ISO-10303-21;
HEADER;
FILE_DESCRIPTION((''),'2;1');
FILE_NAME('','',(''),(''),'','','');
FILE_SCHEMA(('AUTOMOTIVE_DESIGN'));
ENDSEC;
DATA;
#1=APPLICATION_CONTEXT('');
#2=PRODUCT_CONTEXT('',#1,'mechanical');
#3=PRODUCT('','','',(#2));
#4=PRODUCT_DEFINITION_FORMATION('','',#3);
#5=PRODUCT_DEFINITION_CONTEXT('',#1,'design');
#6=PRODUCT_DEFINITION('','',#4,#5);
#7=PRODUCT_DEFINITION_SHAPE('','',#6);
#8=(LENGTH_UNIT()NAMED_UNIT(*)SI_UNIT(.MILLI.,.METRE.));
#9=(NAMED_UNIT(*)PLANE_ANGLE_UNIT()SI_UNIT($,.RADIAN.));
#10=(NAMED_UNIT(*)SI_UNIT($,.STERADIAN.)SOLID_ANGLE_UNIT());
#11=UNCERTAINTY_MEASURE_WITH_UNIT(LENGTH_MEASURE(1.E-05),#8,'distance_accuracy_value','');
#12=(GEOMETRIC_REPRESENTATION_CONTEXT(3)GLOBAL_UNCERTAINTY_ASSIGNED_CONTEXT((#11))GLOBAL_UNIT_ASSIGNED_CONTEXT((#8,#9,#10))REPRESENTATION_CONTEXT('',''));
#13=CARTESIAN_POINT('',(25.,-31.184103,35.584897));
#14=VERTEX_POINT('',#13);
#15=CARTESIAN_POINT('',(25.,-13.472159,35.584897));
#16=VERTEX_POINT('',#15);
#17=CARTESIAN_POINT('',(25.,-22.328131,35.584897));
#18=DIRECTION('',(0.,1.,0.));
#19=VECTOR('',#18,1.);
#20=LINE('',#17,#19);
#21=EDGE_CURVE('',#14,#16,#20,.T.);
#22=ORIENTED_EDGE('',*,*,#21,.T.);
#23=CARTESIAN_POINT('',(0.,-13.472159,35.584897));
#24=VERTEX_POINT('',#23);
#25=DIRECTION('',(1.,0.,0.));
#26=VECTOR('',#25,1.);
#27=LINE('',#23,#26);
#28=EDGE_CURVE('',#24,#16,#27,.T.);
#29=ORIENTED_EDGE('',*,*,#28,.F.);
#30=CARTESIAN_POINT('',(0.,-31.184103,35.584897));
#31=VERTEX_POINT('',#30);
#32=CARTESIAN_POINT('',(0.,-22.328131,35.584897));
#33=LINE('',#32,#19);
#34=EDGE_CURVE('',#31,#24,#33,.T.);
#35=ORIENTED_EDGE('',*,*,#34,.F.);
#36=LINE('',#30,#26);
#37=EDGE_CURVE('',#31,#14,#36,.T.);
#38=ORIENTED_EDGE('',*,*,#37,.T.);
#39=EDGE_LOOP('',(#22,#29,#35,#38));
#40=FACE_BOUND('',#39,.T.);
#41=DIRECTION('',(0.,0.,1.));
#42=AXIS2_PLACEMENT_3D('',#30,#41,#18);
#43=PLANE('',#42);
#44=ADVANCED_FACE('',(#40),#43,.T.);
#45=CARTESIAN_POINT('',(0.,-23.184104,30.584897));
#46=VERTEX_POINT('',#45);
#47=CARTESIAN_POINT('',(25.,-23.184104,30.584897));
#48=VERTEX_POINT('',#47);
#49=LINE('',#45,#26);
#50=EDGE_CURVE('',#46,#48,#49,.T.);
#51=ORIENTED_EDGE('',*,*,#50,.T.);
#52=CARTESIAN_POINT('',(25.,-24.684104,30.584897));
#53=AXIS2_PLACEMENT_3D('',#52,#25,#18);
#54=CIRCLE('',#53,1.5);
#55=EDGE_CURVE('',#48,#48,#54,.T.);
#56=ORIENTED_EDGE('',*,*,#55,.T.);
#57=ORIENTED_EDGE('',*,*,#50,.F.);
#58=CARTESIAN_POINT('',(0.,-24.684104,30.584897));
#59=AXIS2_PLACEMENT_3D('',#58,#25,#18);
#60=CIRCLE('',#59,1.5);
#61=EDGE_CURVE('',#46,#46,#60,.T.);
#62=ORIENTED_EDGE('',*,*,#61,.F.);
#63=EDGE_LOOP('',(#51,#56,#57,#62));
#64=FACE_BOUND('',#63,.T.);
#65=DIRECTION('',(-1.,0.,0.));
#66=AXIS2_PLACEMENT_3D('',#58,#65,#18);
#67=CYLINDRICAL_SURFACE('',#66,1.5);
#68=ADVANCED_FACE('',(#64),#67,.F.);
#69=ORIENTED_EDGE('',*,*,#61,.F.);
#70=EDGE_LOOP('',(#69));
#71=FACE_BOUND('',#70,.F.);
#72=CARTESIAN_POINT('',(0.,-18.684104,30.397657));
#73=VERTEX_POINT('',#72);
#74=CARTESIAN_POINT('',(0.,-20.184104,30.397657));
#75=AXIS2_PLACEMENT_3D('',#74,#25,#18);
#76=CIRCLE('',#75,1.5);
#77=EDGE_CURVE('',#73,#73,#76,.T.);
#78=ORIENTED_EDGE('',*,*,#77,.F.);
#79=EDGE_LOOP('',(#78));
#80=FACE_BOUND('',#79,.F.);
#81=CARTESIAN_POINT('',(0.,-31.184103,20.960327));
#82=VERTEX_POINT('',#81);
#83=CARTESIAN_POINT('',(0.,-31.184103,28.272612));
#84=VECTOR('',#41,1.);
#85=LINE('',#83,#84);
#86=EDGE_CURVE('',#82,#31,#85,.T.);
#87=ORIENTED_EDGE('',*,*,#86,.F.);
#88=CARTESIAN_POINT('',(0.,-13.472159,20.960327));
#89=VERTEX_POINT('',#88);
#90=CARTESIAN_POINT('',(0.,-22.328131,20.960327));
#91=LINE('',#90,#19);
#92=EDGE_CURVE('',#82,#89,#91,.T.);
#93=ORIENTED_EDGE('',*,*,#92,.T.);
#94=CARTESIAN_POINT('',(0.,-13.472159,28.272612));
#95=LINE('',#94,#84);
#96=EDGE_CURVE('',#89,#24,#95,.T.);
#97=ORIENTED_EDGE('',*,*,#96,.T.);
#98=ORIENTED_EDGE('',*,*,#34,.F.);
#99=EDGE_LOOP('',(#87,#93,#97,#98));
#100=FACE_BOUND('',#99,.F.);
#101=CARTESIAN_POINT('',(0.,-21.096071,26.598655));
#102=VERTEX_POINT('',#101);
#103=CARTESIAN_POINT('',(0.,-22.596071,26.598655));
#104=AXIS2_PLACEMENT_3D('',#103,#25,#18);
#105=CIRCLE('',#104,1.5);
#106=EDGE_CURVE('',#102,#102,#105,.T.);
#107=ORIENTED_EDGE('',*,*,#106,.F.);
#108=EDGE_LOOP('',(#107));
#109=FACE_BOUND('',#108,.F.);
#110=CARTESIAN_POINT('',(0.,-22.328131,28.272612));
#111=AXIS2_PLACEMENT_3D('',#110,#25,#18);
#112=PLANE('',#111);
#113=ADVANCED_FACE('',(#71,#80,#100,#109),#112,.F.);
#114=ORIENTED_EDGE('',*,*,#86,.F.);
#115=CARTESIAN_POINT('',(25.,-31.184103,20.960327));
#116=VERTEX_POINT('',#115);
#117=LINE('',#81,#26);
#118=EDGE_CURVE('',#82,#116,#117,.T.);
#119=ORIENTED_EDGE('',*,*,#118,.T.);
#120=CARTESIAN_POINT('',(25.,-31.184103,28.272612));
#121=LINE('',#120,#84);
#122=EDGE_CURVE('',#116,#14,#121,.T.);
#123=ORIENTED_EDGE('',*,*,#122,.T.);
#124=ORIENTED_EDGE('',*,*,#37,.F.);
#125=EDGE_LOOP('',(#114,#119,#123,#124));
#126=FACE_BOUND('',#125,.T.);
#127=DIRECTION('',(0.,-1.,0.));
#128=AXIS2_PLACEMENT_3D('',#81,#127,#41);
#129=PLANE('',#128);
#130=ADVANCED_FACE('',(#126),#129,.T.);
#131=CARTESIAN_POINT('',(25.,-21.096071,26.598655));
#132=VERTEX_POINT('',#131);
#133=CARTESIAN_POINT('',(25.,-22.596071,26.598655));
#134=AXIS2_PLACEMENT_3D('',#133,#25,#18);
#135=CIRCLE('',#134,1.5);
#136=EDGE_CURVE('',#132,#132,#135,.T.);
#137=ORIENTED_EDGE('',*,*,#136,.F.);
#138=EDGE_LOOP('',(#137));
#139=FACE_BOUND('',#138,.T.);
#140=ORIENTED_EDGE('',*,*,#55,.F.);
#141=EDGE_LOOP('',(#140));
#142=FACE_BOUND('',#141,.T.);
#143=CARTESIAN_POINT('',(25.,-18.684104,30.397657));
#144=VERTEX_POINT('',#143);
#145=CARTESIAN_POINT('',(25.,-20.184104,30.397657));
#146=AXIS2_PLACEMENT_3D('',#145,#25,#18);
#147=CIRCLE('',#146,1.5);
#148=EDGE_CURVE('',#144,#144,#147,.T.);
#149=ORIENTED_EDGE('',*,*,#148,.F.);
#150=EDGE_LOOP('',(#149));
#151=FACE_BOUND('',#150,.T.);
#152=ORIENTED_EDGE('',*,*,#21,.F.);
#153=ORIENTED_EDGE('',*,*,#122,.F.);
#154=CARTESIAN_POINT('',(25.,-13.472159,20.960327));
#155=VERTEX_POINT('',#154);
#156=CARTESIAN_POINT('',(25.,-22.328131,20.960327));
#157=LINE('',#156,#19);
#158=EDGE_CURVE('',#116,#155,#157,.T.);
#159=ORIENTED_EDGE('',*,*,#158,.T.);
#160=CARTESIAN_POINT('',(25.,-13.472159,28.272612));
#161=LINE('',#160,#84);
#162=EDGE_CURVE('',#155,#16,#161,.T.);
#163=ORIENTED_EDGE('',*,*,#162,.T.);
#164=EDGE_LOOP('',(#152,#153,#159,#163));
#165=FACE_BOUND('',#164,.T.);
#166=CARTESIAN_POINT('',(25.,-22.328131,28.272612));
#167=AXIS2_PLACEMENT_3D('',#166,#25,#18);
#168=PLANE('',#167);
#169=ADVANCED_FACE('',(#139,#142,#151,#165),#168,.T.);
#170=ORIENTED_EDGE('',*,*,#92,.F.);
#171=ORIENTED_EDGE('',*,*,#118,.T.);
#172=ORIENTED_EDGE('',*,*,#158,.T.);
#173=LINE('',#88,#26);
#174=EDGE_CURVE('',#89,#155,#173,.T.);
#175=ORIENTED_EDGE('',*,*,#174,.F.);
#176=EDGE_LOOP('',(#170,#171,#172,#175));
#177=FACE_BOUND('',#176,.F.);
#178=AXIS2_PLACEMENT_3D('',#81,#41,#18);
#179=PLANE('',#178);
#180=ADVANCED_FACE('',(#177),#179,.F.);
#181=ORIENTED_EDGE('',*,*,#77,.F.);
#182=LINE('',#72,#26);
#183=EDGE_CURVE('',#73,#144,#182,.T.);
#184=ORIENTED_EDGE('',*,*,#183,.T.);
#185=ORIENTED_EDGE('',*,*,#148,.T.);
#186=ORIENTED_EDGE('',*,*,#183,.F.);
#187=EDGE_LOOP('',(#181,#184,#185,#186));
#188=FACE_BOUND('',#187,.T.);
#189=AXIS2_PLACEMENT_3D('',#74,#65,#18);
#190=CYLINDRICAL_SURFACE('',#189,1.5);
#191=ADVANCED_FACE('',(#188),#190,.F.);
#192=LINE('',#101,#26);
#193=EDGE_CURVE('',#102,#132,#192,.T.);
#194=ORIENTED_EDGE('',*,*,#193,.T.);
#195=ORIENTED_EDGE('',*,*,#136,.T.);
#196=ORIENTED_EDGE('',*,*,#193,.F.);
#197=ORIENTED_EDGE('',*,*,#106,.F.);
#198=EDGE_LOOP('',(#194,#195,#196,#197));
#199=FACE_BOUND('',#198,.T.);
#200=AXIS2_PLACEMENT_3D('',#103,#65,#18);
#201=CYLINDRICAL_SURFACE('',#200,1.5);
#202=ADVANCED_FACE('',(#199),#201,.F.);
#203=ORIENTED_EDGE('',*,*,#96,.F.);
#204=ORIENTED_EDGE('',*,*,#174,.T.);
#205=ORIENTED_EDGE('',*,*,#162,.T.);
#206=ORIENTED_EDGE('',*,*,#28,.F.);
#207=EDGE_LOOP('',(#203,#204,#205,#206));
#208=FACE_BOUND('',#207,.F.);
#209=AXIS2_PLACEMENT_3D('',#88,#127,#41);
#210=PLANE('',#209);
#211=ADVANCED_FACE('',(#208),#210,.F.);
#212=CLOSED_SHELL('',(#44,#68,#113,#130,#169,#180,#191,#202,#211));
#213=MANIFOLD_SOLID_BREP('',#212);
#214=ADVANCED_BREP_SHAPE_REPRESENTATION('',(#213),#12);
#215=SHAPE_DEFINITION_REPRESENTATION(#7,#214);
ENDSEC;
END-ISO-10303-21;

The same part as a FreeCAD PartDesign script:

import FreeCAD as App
import Part
import Sketcher

doc = App.newDocument("Part")
body = doc.addObject("PartDesign::Body", "Body")

# Sketch on YZ plane
sketch1 = body.newObject("Sketcher::SketchObject", "Sketch")
sketch1.AttachmentSupport = (doc.getObject("YZ_Plane"), [""])
sketch1.MapMode = "FlatFace"
sketch1.addGeometry([
    Part.LineSegment(App.Vector(-31.2, 35.6, 0), App.Vector(-31.2, 21, 0)),  # 0
    Part.LineSegment(App.Vector(-31.2, 21, 0), App.Vector(-13.5, 21, 0)),  # 1
    Part.LineSegment(App.Vector(-13.5, 21, 0), App.Vector(-13.5, 35.6, 0)),  # 2
    Part.LineSegment(App.Vector(-13.5, 35.6, 0), App.Vector(-31.2, 35.6, 0)),  # 3
    Part.Circle(App.Vector(-22.6, 26.6, 0), App.Vector(0, 0, 1), 1.5),  # 4
    Part.Circle(App.Vector(-24.7, 30.6, 0), App.Vector(0, 0, 1), 1.5),  # 5
    Part.Circle(App.Vector(-20.2, 30.4, 0), App.Vector(0, 0, 1), 1.5),  # 6
], False)
sketch1.addConstraint([
    Sketcher.Constraint("Coincident", 0, 2, 1, 1),
    Sketcher.Constraint("Coincident", 1, 2, 2, 1),
    Sketcher.Constraint("Coincident", 2, 2, 3, 1),
    Sketcher.Constraint("Coincident", 3, 2, 0, 1),
    Sketcher.Constraint("Vertical", 0),
    Sketcher.Constraint("Horizontal", 1),
    Sketcher.Constraint("Vertical", 2),
    Sketcher.Constraint("Horizontal", 3),
    Sketcher.Constraint("Equal", 4, 5),
    Sketcher.Constraint("Equal", 5, 6),
    Sketcher.Constraint("Diameter", 4, 3.0),
    Sketcher.Constraint("DistanceX", 0, 2, 6, 3, 10.999999),
    Sketcher.Constraint("DistanceY", 5, 3, 2, 2, 5.0),
    Sketcher.Constraint("DistanceX", 5, 3, 6, 3, 4.5),
    Sketcher.Constraint("DistanceY", 4, 3, 6, 3, 3.799002),
    Sketcher.Constraint("DistanceY", 0, 2, 0, 1, 14.62457),
    Sketcher.Constraint("DistanceX", 1, 1, 1, 2, 17.711945),
    Sketcher.Constraint("DistanceX", 4, 3, -1, 1, 22.596071),
    Sketcher.Constraint("DistanceX", 1, 2, -1, 1, 13.472159),
    Sketcher.Constraint("DistanceY", 6, 3, 5, 3, 0.18724),
    Sketcher.Constraint("DistanceY", -1, 1, 4, 3, 26.598655),
])
pad1 = body.newObject("PartDesign::Pad", "Pad")
pad1.Profile = sketch1
pad1.Length = 25

doc.recompute()
